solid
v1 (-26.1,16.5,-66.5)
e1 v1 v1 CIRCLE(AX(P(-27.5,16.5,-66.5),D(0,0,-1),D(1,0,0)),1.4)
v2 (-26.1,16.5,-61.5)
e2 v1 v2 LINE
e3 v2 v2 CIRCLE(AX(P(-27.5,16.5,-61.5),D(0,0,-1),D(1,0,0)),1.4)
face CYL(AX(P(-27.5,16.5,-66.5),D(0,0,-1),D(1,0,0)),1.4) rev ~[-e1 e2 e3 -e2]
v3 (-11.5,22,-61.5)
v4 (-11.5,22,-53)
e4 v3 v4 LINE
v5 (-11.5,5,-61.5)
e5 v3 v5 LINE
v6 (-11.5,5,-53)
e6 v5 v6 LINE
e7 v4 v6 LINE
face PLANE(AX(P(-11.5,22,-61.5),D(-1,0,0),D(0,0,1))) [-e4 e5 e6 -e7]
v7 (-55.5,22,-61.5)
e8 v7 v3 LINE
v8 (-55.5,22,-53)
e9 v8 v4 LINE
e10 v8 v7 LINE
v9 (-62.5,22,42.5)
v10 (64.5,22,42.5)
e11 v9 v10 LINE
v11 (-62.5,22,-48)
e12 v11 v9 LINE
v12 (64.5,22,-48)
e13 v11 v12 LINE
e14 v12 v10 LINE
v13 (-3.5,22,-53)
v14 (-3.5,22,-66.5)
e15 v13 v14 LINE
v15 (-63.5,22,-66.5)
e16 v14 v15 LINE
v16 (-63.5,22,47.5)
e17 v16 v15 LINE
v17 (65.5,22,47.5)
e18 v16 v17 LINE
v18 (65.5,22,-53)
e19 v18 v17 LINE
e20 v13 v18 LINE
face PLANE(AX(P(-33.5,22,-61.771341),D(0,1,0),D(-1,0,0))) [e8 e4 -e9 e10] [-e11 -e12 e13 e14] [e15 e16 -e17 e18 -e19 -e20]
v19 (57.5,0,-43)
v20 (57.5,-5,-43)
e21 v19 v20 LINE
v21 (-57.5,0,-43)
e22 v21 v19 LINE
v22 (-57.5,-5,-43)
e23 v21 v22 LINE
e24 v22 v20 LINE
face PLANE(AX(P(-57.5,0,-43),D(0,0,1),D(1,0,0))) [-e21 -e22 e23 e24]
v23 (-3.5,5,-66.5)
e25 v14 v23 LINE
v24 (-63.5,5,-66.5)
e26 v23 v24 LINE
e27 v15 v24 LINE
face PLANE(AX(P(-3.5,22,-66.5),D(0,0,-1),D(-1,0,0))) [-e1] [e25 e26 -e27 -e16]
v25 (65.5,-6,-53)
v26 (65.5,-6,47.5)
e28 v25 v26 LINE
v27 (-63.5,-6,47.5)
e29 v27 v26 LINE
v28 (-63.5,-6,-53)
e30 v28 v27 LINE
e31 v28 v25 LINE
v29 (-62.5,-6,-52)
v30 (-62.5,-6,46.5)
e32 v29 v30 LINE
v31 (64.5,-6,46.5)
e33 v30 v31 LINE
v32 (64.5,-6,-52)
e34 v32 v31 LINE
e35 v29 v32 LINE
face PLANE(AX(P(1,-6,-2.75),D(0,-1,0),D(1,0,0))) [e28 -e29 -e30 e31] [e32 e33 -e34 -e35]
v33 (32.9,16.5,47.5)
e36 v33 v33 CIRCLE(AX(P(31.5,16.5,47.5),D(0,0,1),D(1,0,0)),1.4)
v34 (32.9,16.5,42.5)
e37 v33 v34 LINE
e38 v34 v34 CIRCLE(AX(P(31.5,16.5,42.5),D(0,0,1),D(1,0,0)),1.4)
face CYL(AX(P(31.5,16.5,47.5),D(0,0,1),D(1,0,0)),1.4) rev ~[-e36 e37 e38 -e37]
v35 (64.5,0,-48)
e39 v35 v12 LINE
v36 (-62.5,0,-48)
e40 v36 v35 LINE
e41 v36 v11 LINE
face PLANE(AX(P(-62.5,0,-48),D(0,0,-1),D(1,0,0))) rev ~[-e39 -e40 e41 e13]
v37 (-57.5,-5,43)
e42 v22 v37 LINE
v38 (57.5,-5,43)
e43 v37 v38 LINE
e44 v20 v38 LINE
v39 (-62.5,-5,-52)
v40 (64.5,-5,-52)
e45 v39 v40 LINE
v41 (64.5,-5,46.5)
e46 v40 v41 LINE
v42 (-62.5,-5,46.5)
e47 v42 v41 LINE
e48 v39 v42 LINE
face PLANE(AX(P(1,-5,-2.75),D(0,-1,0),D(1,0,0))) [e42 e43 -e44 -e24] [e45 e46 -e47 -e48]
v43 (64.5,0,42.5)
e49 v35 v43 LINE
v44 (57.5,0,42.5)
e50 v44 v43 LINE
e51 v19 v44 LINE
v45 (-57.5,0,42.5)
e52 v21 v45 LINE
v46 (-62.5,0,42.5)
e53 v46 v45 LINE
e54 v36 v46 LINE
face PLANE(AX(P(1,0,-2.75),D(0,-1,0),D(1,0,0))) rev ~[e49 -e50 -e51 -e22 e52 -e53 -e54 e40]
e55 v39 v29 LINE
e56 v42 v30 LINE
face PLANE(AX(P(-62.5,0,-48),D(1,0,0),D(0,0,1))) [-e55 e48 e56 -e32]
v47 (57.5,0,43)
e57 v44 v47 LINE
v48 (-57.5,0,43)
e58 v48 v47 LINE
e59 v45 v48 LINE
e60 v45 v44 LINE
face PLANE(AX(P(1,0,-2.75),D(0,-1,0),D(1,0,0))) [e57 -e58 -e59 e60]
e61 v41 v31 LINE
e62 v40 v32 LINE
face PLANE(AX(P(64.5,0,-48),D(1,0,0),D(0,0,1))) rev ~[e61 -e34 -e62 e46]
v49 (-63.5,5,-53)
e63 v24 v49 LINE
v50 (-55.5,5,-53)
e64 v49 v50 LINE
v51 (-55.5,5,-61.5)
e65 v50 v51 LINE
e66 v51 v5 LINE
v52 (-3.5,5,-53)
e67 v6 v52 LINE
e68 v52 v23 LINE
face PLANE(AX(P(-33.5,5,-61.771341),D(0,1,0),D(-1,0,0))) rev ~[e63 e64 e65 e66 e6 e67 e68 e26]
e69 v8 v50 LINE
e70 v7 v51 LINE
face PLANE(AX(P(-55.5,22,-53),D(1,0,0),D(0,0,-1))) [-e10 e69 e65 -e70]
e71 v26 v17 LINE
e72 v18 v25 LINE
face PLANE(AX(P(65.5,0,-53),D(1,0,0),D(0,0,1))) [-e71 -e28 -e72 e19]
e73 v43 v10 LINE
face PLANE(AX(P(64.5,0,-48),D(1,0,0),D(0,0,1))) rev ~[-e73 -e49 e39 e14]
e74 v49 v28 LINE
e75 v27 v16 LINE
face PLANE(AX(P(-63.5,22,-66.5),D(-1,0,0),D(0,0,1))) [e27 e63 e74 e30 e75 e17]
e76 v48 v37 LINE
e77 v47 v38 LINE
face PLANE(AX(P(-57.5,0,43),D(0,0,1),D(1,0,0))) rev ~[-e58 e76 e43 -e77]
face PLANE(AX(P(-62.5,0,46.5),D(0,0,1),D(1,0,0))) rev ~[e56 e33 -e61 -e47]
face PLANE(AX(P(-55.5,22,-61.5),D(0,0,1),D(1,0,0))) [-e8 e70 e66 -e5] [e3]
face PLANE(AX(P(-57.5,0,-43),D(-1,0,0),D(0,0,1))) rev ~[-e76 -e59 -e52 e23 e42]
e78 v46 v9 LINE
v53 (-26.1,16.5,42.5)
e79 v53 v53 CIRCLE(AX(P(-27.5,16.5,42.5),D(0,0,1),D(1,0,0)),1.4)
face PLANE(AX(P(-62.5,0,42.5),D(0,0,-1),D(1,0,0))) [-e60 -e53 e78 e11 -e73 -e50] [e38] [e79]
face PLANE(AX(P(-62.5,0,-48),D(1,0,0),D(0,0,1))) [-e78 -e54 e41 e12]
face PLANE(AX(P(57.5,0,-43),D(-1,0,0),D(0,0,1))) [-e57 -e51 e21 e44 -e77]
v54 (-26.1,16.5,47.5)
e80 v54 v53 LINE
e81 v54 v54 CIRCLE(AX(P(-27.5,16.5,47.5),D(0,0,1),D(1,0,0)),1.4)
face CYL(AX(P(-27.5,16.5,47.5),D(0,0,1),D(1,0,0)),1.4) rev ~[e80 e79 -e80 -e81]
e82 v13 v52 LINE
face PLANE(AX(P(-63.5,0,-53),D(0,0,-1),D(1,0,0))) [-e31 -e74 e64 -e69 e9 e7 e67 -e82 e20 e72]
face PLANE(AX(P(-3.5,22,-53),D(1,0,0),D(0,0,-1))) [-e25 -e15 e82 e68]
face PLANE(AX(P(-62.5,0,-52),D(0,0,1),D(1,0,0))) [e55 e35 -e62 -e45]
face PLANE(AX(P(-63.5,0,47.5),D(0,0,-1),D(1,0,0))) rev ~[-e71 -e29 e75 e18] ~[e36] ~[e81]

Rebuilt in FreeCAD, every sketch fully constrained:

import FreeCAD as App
import Part
import Sketcher
Q = App.Units.Quantity


def add_polygon(sketch, points):
    """Adds a closed chain of lines whose ends are joined by coincident constraints."""
    first, n = sketch.GeometryCount, len(points)
    for a, b in zip(points, points[1:] + points[:1]):
        sketch.addGeometry(Part.LineSegment(App.Vector(*a, 0), App.Vector(*b, 0)), False)
    for i in range(n):
        sketch.addConstraint(Sketcher.Constraint("Coincident", first + i, 2, first + (i + 1) % n, 1))

doc = App.newDocument("Part")
body = doc.addObject("PartDesign::Body", "Body")

sketch1 = body.newObject("Sketcher::SketchObject", "Sketch")
sketch1.AttachmentSupport = (doc.getObject("XZ_Plane"), [""])
sketch1.MapMode = "FlatFace"
add_polygon(sketch1, [(-63.5, 47.5), (-63.5, -53), (65.5, -53), (65.5, 47.5)])
add_polygon(sketch1, [(64.5, -52), (-62.5, -52), (-62.5, 46.5), (64.5, 46.5)])
sketch1.addConstraint([
    Sketcher.Constraint("Vertical", 0),
    Sketcher.Constraint("Horizontal", 1),
    Sketcher.Constraint("Vertical", 2),
    Sketcher.Constraint("Horizontal", 3),
    Sketcher.Constraint("Horizontal", 4),
    Sketcher.Constraint("Vertical", 5),
    Sketcher.Constraint("Horizontal", 6),
    Sketcher.Constraint("Vertical", 7),
    Sketcher.Constraint("DistanceX", 1, 1, 1, 2, Q("129 mm")),
    Sketcher.Constraint("DistanceX", 4, 2, 4, 1, Q("127 mm")),
    Sketcher.Constraint("DistanceY", 0, 2, 0, 1, Q("100.5 mm")),
    Sketcher.Constraint("DistanceY", 5, 1, 5, 2, Q("98.5 mm")),
    Sketcher.Constraint("DistanceY", 0, 2, -1, 1, Q("53 mm")),
    Sketcher.Constraint("DistanceY", 4, 2, -1, 1, Q("52 mm")),
    Sketcher.Constraint("DistanceX", 0, 2, 4, 2, Q("1 mm")),
    Sketcher.Constraint("DistanceX", 0, 2, -1, 1, Q("63.5 mm")),
])
pad1 = body.newObject("PartDesign::Pad", "Pad")
pad1.Profile = sketch1
pad1.Length = 6

sketch2 = body.newObject("Sketcher::SketchObject", "Sketch001")
sketch2.AttachmentSupport = (doc.getObject("XZ_Plane"), [""])
sketch2.MapMode = "FlatFace"
add_polygon(sketch2, [(-63.5, 47.5), (-63.5, -53), (65.5, -53), (65.5, 47.5)])
add_polygon(sketch2, [(64.5, -48), (-62.5, -48), (-62.5, 42.5), (64.5, 42.5)])
sketch2.addConstraint([
    Sketcher.Constraint("Vertical", 0),
    Sketcher.Constraint("Horizontal", 1),
    Sketcher.Constraint("Vertical", 2),
    Sketcher.Constraint("Horizontal", 3),
    Sketcher.Constraint("Horizontal", 4),
    Sketcher.Constraint("Vertical", 5),
    Sketcher.Constraint("Horizontal", 6),
    Sketcher.Constraint("Vertical", 7),
    Sketcher.Constraint("DistanceX", 1, 1, 1, 2, Q("129 mm")),
    Sketcher.Constraint("DistanceX", 4, 2, 4, 1, Q("127 mm")),
    Sketcher.Constraint("DistanceY", 0, 2, 0, 1, Q("100.5 mm")),
    Sketcher.Constraint("DistanceY", 5, 1, 5, 2, Q("90.5 mm")),
    Sketcher.Constraint("DistanceY", 0, 2, -1, 1, Q("53 mm")),
    Sketcher.Constraint("DistanceY", 4, 2, -1, 1, Q("48 mm")),
    Sketcher.Constraint("DistanceX", 0, 2, 4, 2, Q("1 mm")),
    Sketcher.Constraint("DistanceX", 0, 2, -1, 1, Q("63.5 mm")),
])
pad2 = body.newObject("PartDesign::Pad", "Pad001")
pad2.Profile = sketch2
pad2.Length = 22
pad2.Reversed = True

sketch3 = body.newObject("Sketcher::SketchObject", "Sketch002")
sketch3.AttachmentSupport = (doc.getObject("XZ_Plane"), [""])
sketch3.MapMode = "FlatFace"
sketch3.AttachmentOffset = App.Placement(App.Vector(0, 0, -22), App.Rotation())
add_polygon(sketch3, [(-3.5, -66.5), (-63.5, -66.5), (-63.5, -53), (-55.5, -53), (-55.5, -61.5), (-11.5, -61.5), (-11.5, -53), (-3.5, -53)])
sketch3.addConstraint([
    Sketcher.Constraint("Horizontal", 0),
    Sketcher.Constraint("Vertical", 1),
    Sketcher.Constraint("Horizontal", 2),
    Sketcher.Constraint("Vertical", 3),
    Sketcher.Constraint("Horizontal", 4),
    Sketcher.Constraint("Vertical", 5),
    Sketcher.Constraint("Horizontal", 6),
    Sketcher.Constraint("Vertical", 7),
    Sketcher.Constraint("Horizontal", 2, 2, 5, 2),
    Sketcher.Constraint("Equal", 2, 6),
    Sketcher.Constraint("DistanceX", 0, 2, 0, 1, Q("60 mm")),
    Sketcher.Constraint("DistanceX", 2, 1, 2, 2, Q("8 mm")),
    Sketcher.Constraint("DistanceY", 1, 1, 1, 2, Q("13.5 mm")),
    Sketcher.Constraint("DistanceY", 3, 2, 3, 1, Q("8.5 mm")),
    Sketcher.Constraint("DistanceY", 1, 2, -1, 1, Q("53 mm")),
    Sketcher.Constraint("DistanceX", 0, 2, -1, 1, Q("63.5 mm")),
])
pad3 = body.newObject("PartDesign::Pad", "Pad002")
pad3.Profile = sketch3
pad3.Length = 17

sketch4 = body.newObject("Sketcher::SketchObject", "Sketch003")
sketch4.AttachmentSupport = (doc.getObject("XY_Plane"), [""])
sketch4.MapMode = "FlatFace"
sketch4.AttachmentOffset = App.Placement(App.Vector(0, 0, 47.5), App.Rotation())
sketch4.addGeometry([
    Part.Circle(App.Vector(-27.5, 16.5, 0), App.Vector(0, 0, 1), 1.4),
    Part.Circle(App.Vector(31.5, 16.5, 0), App.Vector(0, 0, 1), 1.4),
], False)
sketch4.addConstraint([
    Sketcher.Constraint("Equal", 0, 1),
    Sketcher.Constraint("Horizontal", 0, 3, 1, 3),
    Sketcher.Constraint("Diameter", 0, Q("2.8 mm")),
    Sketcher.Constraint("DistanceX", 0, 3, 1, 3, Q("59 mm")),
    Sketcher.Constraint("DistanceX", 0, 3, -1, 1, Q("27.5 mm")),
    Sketcher.Constraint("DistanceY", -1, 1, 0, 3, Q("16.5 mm")),
])
pocket1 = body.newObject("PartDesign::Pocket", "Pocket")
pocket1.Profile = sketch4
pocket1.Length = 7.9

sketch5 = body.newObject("Sketcher::SketchObject", "Sketch004")
sketch5.AttachmentSupport = (doc.getObject("XY_Plane"), [""])
sketch5.MapMode = "FlatFace"
sketch5.AttachmentOffset = App.Placement(App.Vector(0, 0, -66.5), App.Rotation())
sketch5.addGeometry(Part.Circle(App.Vector(-27.5, 16.5, 0), App.Vector(0, 0, 1), 1.4), False)
sketch5.addConstraint([
    Sketcher.Constraint("Diameter", 0, Q("2.8 mm")),
    Sketcher.Constraint("DistanceX", 0, 3, -1, 1, Q("27.5 mm")),
    Sketcher.Constraint("DistanceY", -1, 1, 0, 3, Q("16.5 mm")),
])
pocket2 = body.newObject("PartDesign::Pocket", "Pocket001")
pocket2.Profile = sketch5
pocket2.Length = 5
pocket2.Reversed = True

sketch6 = body.newObject("Sketcher::SketchObject", "Sketch005")
sketch6.AttachmentSupport = (doc.getObject("XZ_Plane"), [""])
sketch6.MapMode = "FlatFace"
add_polygon(sketch6, [(-62.5, 46.5), (-62.5, -52), (64.5, -52), (64.5, 46.5)])
add_polygon(sketch6, [(57.5, -43), (-57.5, -43), (-57.5, 43), (57.5, 43)])
sketch6.addConstraint([
    Sketcher.Constraint("Vertical", 0),
    Sketcher.Constraint("Horizontal", 1),
    Sketcher.Constraint("Vertical", 2),
    Sketcher.Constraint("Horizontal", 3),
    Sketcher.Constraint("Horizontal", 4),
    Sketcher.Constraint("Vertical", 5),
    Sketcher.Constraint("Horizontal", 6),
    Sketcher.Constraint("Vertical", 7),
    Sketcher.Constraint("Symmetric", 4, 2, 6, 2, -1, 1),
    Sketcher.Constraint("DistanceX", 1, 1, 1, 2, Q("127 mm")),
    Sketcher.Constraint("DistanceX", 4, 2, 4, 1, Q("115 mm")),
    Sketcher.Constraint("DistanceY", 5, 1, 5, 2, Q("86 mm")),
    Sketcher.Constraint("DistanceY", 0, 2, 0, 1, Q("98.5 mm")),
    Sketcher.Constraint("DistanceY", 0, 2, -1, 1, Q("52 mm")),
    Sketcher.Constraint("DistanceX", 0, 2, 4, 2, Q("5 mm")),
])
pad4 = body.newObject("PartDesign::Pad", "Pad003")
pad4.Profile = sketch6
pad4.Length = 5

doc.recompute()
